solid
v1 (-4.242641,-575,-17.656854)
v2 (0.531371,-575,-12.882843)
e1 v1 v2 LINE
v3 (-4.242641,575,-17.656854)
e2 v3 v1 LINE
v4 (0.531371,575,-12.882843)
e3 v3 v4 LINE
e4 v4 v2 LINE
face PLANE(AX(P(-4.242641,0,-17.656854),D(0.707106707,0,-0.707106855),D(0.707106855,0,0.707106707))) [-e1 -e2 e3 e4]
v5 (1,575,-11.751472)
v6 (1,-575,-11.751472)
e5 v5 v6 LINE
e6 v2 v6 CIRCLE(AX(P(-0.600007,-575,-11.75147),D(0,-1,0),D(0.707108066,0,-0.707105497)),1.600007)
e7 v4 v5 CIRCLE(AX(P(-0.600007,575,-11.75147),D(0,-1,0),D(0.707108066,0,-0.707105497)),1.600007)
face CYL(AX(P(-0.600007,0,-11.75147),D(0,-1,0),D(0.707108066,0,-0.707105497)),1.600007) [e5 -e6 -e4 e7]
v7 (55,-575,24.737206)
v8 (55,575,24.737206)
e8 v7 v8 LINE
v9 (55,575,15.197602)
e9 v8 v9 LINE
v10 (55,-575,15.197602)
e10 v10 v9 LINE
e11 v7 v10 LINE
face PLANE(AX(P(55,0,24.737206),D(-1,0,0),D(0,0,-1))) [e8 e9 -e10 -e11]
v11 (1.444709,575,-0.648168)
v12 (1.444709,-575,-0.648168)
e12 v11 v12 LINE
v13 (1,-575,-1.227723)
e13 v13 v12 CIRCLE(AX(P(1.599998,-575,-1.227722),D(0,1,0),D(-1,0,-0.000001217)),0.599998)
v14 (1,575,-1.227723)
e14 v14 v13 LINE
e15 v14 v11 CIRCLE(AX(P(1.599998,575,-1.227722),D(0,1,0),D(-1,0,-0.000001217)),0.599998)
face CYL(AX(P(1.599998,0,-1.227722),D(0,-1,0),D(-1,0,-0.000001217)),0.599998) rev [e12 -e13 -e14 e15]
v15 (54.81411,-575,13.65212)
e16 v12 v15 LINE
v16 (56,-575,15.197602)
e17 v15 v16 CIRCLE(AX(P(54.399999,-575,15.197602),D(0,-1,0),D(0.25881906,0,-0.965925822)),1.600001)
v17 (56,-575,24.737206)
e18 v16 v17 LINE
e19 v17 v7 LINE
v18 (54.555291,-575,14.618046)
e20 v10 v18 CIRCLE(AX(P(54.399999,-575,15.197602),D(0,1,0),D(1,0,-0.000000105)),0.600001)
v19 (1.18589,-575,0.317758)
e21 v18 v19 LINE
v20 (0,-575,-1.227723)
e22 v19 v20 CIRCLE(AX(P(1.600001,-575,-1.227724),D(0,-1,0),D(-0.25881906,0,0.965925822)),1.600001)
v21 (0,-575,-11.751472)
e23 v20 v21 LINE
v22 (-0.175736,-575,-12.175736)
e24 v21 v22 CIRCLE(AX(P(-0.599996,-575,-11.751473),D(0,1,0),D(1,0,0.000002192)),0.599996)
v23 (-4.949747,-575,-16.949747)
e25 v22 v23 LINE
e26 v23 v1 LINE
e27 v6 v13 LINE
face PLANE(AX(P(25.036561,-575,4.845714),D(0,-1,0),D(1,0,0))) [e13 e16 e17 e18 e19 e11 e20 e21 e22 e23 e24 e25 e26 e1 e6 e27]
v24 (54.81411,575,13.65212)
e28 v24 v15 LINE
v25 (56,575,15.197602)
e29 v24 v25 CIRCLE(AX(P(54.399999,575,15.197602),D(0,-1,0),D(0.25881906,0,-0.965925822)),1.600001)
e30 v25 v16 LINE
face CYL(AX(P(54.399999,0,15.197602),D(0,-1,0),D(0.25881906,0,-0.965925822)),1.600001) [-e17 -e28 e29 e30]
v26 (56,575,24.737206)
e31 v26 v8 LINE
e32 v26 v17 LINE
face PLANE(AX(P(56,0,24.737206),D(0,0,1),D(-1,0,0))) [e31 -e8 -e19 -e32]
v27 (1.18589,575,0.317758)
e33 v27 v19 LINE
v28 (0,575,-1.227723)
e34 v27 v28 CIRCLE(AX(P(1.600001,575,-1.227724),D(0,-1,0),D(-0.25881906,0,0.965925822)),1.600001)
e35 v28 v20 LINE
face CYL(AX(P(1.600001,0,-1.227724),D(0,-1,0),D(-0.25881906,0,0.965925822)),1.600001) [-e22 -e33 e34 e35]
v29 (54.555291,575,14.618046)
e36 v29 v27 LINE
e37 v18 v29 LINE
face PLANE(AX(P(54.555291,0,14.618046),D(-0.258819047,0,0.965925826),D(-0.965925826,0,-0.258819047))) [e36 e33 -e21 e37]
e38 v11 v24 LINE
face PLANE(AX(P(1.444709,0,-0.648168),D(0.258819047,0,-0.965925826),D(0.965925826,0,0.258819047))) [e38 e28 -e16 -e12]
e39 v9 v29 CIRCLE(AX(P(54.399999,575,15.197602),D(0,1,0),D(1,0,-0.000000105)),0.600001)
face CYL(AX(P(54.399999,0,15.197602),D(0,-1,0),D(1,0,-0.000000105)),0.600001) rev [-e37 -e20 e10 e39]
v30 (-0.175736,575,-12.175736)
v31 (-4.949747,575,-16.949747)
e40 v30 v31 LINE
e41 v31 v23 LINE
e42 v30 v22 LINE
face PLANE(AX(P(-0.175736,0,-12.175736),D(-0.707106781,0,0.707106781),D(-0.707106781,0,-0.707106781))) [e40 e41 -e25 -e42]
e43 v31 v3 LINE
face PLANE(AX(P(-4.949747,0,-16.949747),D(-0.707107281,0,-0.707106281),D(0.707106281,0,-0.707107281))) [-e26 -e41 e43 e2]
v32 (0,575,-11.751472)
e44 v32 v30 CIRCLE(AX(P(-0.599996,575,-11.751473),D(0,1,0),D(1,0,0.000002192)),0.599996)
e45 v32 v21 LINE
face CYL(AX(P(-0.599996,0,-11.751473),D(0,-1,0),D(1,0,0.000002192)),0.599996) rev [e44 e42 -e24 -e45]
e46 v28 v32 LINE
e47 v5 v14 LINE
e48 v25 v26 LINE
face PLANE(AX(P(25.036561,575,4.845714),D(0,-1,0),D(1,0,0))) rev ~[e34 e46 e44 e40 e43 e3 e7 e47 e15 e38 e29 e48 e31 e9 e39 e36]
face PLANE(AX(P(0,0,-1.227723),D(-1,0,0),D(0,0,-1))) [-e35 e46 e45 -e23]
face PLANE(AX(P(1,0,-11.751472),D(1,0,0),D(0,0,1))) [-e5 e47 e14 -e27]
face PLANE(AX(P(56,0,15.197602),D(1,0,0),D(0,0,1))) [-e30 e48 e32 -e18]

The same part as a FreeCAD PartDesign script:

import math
import FreeCAD as App
import Part
import Sketcher
from FreeCAD import Vector
Q = App.Units.Quantity

doc = App.newDocument("Part")
body = doc.addObject("PartDesign::Body", "Body")

# Sketch on XZ plane
sketch1 = body.newObject("Sketcher::SketchObject", "Sketch")
sketch1.AttachmentSupport = (doc.getObject("XZ_Plane"), [""])
sketch1.MapMode = "FlatFace"
sketch1.addGeometry([
    Part.LineSegment(Vector(54.56, 14.62, 0), Vector(1.19, 0.32, 0)),  # 0
    Part.ArcOfCircle(Part.Circle(Vector(1.6, -1.23, 0), Vector(0, 0, 1), 1.6), math.radians(105), math.radians(180)),  # 1
    Part.LineSegment(Vector(0, -1.23, 0), Vector(0, -11.75, 0)),  # 2
    Part.ArcOfCircle(Part.Circle(Vector(-0.6, -11.75, 0), Vector(0, 0, 1), 0.6), math.radians(-45), math.radians(0)),  # 3
    Part.LineSegment(Vector(-0.18, -12.18, 0), Vector(-4.95, -16.95, 0)),  # 4
    Part.LineSegment(Vector(-4.95, -16.95, 0), Vector(-4.24, -17.66, 0)),  # 5
    Part.LineSegment(Vector(-4.24, -17.66, 0), Vector(0.53, -12.88, 0)),  # 6
    Part.ArcOfCircle(Part.Circle(Vector(-0.6, -11.75, 0), Vector(0, 0, 1), 1.6), math.radians(-45), math.radians(0)),  # 7
    Part.LineSegment(Vector(1, -11.75, 0), Vector(1, -1.23, 0)),  # 8
    Part.ArcOfCircle(Part.Circle(Vector(1.6, -1.23, 0), Vector(0, 0, 1), 0.6), math.radians(105), math.radians(180)),  # 9
    Part.LineSegment(Vector(1.44, -0.65, 0), Vector(54.81, 13.65, 0)),  # 10
    Part.ArcOfCircle(Part.Circle(Vector(54.4, 15.2, 0), Vector(0, 0, 1), 1.6), math.radians(-75), math.radians(0)),  # 11
    Part.LineSegment(Vector(56, 15.2, 0), Vector(56, 24.74, 0)),  # 12
    Part.LineSegment(Vector(56, 24.74, 0), Vector(55, 24.74, 0)),  # 13
    Part.LineSegment(Vector(55, 24.74, 0), Vector(55, 15.2, 0)),  # 14
    Part.ArcOfCircle(Part.Circle(Vector(54.4, 15.2, 0), Vector(0, 0, 1), 0.6), math.radians(-75), math.radians(0)),  # 15
], False)
sketch1.addConstraint([
    Sketcher.Constraint("Tangent", 0, 2, 1, 1),
    Sketcher.Constraint("Tangent", 1, 2, 2, 1),
    Sketcher.Constraint("Coincident", 2, 2, 3, 2),
    Sketcher.Constraint("Coincident", 3, 1, 4, 1),
    Sketcher.Constraint("Coincident", 4, 2, 5, 1),
    Sketcher.Constraint("Coincident", 5, 2, 6, 1),
    Sketcher.Constraint("Tangent", 6, 2, 7, 1),
    Sketcher.Constraint("Tangent", 7, 2, 8, 1),
    Sketcher.Constraint("Tangent", 8, 2, 9, 2),
    Sketcher.Constraint("Coincident", 9, 1, 10, 1),
    Sketcher.Constraint("Tangent", 10, 2, 11, 1),
    Sketcher.Constraint("Tangent", 11, 2, 12, 1),
    Sketcher.Constraint("Coincident", 12, 2, 13, 1),
    Sketcher.Constraint("Coincident", 13, 2, 14, 1),
    Sketcher.Constraint("Tangent", 14, 2, 15, 2),
    Sketcher.Constraint("Tangent", 15, 1, 0, 1),
    Sketcher.Constraint("Vertical", 2),
    Sketcher.Constraint("Vertical", 8),
    Sketcher.Constraint("Vertical", 12),
    Sketcher.Constraint("Horizontal", 13),
    Sketcher.Constraint("Vertical", 14),
    Sketcher.Constraint("Coincident", 9, 3, 1, 3),
    Sketcher.Constraint("Coincident", 15, 3, 11, 3),
    Sketcher.Constraint("Equal", 3, 9),
    Sketcher.Constraint("Equal", 1, 11),
    Sketcher.Constraint("PointOnObject", 1, 2, -2),
    Sketcher.Constraint("Perpendicular", 4, 5),
    Sketcher.Constraint("Perpendicular", 5, 6),
    Sketcher.Constraint("Parallel", 0, 10),
    Sketcher.Constraint("Horizontal", 3, 3, 2, 2),
    Sketcher.Constraint("Horizontal", 2, 2, 7, 2),
    Sketcher.Constraint("Equal", 4, 6),
    Sketcher.Constraint("Equal", 0, 10),
    Sketcher.Constraint("Radius", 1, Q("1.600001 mm")),
    Sketcher.Constraint("Radius", 9, Q("0.599998 mm")),
    Sketcher.Constraint("Angle", 0, Q("-165 deg")),
    Sketcher.Constraint("Angle", 4, Q("-135 deg")),
    Sketcher.Constraint("Distance", 5, Q("1 mm")),
    Sketcher.Constraint("DistanceX", -1, 1, 11, 2, Q("56 mm")),
    Sketcher.Constraint("DistanceY", 2, 2, 2, 1, Q("10.523749 mm")),
    Sketcher.Constraint("DistanceY", -1, 1, 11, 3, Q("15.197602 mm")),
    Sketcher.Constraint("Distance", 4, Q("6.751471 mm")),
    Sketcher.Constraint("DistanceY", 12, 1, 12, 2, Q("9.539604 mm")),
])
pad1 = body.newObject("PartDesign::Pad", "Pad")
pad1.Profile = sketch1
pad1.Length = 1150
pad1.Midplane = True

doc.recompute()
